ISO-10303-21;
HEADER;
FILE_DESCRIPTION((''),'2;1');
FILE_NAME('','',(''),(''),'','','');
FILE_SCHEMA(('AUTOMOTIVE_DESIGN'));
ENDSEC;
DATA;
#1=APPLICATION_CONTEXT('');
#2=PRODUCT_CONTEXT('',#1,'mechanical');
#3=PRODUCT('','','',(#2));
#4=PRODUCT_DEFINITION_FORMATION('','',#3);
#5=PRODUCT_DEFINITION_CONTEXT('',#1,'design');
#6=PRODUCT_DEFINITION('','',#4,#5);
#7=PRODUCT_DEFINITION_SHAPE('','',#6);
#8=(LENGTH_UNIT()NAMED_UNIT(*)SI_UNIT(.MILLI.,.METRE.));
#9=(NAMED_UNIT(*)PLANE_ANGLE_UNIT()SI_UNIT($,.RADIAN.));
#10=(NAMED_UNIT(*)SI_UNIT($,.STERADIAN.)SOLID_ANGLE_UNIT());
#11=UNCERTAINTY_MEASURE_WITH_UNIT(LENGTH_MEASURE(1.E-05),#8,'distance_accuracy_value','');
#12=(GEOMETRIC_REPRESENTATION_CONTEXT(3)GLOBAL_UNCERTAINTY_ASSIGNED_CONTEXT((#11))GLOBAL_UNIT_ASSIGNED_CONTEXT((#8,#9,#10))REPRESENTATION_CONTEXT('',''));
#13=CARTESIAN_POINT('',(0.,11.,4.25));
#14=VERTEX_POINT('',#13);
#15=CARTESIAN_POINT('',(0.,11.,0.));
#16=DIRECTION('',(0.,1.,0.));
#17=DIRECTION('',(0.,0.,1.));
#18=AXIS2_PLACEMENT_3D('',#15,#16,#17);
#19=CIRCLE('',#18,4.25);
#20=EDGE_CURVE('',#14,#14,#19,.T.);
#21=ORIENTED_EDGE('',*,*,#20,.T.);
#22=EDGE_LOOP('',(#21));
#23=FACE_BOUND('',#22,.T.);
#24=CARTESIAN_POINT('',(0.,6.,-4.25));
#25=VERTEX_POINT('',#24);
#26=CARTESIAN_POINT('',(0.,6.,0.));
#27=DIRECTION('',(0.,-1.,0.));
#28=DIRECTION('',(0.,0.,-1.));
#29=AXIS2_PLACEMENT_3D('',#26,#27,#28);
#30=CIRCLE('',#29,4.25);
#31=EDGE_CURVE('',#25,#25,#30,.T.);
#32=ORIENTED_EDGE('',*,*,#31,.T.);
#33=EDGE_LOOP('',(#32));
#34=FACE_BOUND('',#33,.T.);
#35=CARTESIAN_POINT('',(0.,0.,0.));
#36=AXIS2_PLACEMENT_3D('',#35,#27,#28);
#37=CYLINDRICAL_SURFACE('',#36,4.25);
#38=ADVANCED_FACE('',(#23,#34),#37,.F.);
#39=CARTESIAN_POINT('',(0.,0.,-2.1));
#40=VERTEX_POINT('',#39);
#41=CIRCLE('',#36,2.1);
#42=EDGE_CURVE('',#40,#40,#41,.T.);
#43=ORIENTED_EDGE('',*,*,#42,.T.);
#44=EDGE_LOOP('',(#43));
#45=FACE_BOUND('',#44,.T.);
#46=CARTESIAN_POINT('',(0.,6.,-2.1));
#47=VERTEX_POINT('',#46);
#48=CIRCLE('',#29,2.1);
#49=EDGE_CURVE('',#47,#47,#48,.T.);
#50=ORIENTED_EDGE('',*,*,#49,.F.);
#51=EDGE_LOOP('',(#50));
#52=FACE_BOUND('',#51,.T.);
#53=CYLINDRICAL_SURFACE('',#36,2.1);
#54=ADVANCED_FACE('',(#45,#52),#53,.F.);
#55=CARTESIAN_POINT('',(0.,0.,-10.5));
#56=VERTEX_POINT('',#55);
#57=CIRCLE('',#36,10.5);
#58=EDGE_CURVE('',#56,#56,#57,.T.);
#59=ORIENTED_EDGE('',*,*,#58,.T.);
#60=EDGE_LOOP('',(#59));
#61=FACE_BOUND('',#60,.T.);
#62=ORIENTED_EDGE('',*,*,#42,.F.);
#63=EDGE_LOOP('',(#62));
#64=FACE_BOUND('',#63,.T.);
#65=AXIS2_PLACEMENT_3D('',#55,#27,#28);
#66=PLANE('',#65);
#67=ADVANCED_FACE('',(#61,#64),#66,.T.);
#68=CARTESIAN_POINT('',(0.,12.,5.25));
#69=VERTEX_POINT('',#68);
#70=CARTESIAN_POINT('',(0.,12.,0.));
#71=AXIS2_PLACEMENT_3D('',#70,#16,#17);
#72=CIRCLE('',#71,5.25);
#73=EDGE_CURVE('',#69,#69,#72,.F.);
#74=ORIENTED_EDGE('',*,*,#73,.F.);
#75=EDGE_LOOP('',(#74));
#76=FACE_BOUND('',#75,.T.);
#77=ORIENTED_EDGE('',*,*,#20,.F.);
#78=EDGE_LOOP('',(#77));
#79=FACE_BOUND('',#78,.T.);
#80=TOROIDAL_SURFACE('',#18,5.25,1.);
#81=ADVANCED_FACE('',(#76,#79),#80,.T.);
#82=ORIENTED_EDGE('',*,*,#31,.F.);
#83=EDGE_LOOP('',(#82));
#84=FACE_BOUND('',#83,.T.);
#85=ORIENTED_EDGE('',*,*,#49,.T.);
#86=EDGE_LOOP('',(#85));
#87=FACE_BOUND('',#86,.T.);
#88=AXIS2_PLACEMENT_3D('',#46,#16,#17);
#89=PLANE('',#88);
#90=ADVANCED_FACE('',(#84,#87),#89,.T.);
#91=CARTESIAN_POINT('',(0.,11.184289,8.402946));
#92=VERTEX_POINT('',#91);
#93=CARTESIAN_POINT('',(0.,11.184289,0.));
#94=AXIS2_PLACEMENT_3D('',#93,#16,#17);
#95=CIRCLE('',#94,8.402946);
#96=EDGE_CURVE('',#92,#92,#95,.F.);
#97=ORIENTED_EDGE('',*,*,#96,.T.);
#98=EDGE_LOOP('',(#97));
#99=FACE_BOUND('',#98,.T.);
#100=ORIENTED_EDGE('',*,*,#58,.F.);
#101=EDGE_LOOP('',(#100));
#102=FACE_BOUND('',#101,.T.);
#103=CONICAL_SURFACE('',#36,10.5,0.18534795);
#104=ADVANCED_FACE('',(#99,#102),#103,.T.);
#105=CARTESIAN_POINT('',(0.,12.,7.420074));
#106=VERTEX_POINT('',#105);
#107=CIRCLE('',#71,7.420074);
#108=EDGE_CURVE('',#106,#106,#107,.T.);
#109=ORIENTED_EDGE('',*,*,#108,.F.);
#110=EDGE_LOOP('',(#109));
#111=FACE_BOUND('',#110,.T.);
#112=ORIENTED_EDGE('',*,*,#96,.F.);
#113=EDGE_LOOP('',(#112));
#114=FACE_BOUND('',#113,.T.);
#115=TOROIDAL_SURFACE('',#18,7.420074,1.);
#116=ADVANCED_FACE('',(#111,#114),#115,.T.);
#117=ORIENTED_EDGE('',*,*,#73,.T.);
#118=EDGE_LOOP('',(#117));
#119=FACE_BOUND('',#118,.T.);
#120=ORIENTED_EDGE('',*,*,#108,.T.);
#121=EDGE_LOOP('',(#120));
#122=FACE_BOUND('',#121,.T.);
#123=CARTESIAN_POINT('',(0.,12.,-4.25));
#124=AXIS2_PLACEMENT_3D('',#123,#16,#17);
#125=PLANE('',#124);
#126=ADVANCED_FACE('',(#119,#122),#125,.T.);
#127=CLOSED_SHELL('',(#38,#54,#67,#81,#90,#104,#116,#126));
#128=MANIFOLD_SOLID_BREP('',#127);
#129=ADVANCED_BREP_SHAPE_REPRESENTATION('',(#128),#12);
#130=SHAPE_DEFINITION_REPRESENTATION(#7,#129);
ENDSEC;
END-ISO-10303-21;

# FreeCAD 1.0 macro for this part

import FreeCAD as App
import Part
import Sketcher


def edges_at(feature, points):
    """Names of the edges that pass closest to the given points."""
    edges = feature.Shape.Edges
    near = lambda p: min(range(len(edges)), key=lambda i: edges[i].distToShape(Part.Vertex(*p))[0])
    return sorted({f"Edge{near(p) + 1}" for p in points})


def add_polygon(sketch, points):
    """Adds a closed chain of lines whose ends are joined by coincident constraints."""
    first, n = sketch.GeometryCount, len(points)
    for a, b in zip(points, points[1:] + points[:1]):
        sketch.addGeometry(Part.LineSegment(App.Vector(*a, 0), App.Vector(*b, 0)), False)
    for i in range(n):
        sketch.addConstraint(Sketcher.Constraint("Coincident", first + i, 2, first + (i + 1) % n, 1))

doc = App.newDocument("Part")
body = doc.addObject("PartDesign::Body", "Body")

sketch1 = body.newObject("Sketcher::SketchObject", "Sketch")
sketch1.AttachmentSupport = (doc.getObject("YZ_Plane"), [""])
sketch1.MapMode = "FlatFace"
add_polygon(sketch1, [(6, -4.2), (6, -2.1), (0, -2.1), (0, -10.5), (12, -8.2), (12, -4.2)])
sketch1.addConstraint([
    Sketcher.Constraint("Vertical", 0),
    Sketcher.Constraint("Horizontal", 1),
    Sketcher.Constraint("Vertical", 2),
    Sketcher.Constraint("Vertical", 4),
    Sketcher.Constraint("Horizontal", 5),
    Sketcher.Constraint("PointOnObject", 1, 2, -2),
    Sketcher.Constraint("Equal", 1, 5),
    Sketcher.Constraint("DistanceX", 1, 2, 1, 1, 6.0),
    Sketcher.Constraint("DistanceY", 4, 1, 4, 2, 4.0),
    Sketcher.Constraint("DistanceY", 2, 2, 2, 1, 8.4),
    Sketcher.Constraint("DistanceY", 0, 1, 0, 2, 2.15),
    Sketcher.Constraint("DistanceY", 0, 2, -1, 1, 2.1),
])
revolution = body.newObject("PartDesign::Revolution", "Revolution")
revolution.Profile = sketch1
revolution.ReferenceAxis = (sketch1, ["H_Axis"])
revolution.Angle = 360
doc.recompute()

fillet = body.newObject("PartDesign::Fillet", "Fillet")
fillet.Base = (revolution, edges_at(revolution, [(0, 12, 8.25), (0, 12, 4.25)]))
fillet.Radius = 1

doc.recompute()
